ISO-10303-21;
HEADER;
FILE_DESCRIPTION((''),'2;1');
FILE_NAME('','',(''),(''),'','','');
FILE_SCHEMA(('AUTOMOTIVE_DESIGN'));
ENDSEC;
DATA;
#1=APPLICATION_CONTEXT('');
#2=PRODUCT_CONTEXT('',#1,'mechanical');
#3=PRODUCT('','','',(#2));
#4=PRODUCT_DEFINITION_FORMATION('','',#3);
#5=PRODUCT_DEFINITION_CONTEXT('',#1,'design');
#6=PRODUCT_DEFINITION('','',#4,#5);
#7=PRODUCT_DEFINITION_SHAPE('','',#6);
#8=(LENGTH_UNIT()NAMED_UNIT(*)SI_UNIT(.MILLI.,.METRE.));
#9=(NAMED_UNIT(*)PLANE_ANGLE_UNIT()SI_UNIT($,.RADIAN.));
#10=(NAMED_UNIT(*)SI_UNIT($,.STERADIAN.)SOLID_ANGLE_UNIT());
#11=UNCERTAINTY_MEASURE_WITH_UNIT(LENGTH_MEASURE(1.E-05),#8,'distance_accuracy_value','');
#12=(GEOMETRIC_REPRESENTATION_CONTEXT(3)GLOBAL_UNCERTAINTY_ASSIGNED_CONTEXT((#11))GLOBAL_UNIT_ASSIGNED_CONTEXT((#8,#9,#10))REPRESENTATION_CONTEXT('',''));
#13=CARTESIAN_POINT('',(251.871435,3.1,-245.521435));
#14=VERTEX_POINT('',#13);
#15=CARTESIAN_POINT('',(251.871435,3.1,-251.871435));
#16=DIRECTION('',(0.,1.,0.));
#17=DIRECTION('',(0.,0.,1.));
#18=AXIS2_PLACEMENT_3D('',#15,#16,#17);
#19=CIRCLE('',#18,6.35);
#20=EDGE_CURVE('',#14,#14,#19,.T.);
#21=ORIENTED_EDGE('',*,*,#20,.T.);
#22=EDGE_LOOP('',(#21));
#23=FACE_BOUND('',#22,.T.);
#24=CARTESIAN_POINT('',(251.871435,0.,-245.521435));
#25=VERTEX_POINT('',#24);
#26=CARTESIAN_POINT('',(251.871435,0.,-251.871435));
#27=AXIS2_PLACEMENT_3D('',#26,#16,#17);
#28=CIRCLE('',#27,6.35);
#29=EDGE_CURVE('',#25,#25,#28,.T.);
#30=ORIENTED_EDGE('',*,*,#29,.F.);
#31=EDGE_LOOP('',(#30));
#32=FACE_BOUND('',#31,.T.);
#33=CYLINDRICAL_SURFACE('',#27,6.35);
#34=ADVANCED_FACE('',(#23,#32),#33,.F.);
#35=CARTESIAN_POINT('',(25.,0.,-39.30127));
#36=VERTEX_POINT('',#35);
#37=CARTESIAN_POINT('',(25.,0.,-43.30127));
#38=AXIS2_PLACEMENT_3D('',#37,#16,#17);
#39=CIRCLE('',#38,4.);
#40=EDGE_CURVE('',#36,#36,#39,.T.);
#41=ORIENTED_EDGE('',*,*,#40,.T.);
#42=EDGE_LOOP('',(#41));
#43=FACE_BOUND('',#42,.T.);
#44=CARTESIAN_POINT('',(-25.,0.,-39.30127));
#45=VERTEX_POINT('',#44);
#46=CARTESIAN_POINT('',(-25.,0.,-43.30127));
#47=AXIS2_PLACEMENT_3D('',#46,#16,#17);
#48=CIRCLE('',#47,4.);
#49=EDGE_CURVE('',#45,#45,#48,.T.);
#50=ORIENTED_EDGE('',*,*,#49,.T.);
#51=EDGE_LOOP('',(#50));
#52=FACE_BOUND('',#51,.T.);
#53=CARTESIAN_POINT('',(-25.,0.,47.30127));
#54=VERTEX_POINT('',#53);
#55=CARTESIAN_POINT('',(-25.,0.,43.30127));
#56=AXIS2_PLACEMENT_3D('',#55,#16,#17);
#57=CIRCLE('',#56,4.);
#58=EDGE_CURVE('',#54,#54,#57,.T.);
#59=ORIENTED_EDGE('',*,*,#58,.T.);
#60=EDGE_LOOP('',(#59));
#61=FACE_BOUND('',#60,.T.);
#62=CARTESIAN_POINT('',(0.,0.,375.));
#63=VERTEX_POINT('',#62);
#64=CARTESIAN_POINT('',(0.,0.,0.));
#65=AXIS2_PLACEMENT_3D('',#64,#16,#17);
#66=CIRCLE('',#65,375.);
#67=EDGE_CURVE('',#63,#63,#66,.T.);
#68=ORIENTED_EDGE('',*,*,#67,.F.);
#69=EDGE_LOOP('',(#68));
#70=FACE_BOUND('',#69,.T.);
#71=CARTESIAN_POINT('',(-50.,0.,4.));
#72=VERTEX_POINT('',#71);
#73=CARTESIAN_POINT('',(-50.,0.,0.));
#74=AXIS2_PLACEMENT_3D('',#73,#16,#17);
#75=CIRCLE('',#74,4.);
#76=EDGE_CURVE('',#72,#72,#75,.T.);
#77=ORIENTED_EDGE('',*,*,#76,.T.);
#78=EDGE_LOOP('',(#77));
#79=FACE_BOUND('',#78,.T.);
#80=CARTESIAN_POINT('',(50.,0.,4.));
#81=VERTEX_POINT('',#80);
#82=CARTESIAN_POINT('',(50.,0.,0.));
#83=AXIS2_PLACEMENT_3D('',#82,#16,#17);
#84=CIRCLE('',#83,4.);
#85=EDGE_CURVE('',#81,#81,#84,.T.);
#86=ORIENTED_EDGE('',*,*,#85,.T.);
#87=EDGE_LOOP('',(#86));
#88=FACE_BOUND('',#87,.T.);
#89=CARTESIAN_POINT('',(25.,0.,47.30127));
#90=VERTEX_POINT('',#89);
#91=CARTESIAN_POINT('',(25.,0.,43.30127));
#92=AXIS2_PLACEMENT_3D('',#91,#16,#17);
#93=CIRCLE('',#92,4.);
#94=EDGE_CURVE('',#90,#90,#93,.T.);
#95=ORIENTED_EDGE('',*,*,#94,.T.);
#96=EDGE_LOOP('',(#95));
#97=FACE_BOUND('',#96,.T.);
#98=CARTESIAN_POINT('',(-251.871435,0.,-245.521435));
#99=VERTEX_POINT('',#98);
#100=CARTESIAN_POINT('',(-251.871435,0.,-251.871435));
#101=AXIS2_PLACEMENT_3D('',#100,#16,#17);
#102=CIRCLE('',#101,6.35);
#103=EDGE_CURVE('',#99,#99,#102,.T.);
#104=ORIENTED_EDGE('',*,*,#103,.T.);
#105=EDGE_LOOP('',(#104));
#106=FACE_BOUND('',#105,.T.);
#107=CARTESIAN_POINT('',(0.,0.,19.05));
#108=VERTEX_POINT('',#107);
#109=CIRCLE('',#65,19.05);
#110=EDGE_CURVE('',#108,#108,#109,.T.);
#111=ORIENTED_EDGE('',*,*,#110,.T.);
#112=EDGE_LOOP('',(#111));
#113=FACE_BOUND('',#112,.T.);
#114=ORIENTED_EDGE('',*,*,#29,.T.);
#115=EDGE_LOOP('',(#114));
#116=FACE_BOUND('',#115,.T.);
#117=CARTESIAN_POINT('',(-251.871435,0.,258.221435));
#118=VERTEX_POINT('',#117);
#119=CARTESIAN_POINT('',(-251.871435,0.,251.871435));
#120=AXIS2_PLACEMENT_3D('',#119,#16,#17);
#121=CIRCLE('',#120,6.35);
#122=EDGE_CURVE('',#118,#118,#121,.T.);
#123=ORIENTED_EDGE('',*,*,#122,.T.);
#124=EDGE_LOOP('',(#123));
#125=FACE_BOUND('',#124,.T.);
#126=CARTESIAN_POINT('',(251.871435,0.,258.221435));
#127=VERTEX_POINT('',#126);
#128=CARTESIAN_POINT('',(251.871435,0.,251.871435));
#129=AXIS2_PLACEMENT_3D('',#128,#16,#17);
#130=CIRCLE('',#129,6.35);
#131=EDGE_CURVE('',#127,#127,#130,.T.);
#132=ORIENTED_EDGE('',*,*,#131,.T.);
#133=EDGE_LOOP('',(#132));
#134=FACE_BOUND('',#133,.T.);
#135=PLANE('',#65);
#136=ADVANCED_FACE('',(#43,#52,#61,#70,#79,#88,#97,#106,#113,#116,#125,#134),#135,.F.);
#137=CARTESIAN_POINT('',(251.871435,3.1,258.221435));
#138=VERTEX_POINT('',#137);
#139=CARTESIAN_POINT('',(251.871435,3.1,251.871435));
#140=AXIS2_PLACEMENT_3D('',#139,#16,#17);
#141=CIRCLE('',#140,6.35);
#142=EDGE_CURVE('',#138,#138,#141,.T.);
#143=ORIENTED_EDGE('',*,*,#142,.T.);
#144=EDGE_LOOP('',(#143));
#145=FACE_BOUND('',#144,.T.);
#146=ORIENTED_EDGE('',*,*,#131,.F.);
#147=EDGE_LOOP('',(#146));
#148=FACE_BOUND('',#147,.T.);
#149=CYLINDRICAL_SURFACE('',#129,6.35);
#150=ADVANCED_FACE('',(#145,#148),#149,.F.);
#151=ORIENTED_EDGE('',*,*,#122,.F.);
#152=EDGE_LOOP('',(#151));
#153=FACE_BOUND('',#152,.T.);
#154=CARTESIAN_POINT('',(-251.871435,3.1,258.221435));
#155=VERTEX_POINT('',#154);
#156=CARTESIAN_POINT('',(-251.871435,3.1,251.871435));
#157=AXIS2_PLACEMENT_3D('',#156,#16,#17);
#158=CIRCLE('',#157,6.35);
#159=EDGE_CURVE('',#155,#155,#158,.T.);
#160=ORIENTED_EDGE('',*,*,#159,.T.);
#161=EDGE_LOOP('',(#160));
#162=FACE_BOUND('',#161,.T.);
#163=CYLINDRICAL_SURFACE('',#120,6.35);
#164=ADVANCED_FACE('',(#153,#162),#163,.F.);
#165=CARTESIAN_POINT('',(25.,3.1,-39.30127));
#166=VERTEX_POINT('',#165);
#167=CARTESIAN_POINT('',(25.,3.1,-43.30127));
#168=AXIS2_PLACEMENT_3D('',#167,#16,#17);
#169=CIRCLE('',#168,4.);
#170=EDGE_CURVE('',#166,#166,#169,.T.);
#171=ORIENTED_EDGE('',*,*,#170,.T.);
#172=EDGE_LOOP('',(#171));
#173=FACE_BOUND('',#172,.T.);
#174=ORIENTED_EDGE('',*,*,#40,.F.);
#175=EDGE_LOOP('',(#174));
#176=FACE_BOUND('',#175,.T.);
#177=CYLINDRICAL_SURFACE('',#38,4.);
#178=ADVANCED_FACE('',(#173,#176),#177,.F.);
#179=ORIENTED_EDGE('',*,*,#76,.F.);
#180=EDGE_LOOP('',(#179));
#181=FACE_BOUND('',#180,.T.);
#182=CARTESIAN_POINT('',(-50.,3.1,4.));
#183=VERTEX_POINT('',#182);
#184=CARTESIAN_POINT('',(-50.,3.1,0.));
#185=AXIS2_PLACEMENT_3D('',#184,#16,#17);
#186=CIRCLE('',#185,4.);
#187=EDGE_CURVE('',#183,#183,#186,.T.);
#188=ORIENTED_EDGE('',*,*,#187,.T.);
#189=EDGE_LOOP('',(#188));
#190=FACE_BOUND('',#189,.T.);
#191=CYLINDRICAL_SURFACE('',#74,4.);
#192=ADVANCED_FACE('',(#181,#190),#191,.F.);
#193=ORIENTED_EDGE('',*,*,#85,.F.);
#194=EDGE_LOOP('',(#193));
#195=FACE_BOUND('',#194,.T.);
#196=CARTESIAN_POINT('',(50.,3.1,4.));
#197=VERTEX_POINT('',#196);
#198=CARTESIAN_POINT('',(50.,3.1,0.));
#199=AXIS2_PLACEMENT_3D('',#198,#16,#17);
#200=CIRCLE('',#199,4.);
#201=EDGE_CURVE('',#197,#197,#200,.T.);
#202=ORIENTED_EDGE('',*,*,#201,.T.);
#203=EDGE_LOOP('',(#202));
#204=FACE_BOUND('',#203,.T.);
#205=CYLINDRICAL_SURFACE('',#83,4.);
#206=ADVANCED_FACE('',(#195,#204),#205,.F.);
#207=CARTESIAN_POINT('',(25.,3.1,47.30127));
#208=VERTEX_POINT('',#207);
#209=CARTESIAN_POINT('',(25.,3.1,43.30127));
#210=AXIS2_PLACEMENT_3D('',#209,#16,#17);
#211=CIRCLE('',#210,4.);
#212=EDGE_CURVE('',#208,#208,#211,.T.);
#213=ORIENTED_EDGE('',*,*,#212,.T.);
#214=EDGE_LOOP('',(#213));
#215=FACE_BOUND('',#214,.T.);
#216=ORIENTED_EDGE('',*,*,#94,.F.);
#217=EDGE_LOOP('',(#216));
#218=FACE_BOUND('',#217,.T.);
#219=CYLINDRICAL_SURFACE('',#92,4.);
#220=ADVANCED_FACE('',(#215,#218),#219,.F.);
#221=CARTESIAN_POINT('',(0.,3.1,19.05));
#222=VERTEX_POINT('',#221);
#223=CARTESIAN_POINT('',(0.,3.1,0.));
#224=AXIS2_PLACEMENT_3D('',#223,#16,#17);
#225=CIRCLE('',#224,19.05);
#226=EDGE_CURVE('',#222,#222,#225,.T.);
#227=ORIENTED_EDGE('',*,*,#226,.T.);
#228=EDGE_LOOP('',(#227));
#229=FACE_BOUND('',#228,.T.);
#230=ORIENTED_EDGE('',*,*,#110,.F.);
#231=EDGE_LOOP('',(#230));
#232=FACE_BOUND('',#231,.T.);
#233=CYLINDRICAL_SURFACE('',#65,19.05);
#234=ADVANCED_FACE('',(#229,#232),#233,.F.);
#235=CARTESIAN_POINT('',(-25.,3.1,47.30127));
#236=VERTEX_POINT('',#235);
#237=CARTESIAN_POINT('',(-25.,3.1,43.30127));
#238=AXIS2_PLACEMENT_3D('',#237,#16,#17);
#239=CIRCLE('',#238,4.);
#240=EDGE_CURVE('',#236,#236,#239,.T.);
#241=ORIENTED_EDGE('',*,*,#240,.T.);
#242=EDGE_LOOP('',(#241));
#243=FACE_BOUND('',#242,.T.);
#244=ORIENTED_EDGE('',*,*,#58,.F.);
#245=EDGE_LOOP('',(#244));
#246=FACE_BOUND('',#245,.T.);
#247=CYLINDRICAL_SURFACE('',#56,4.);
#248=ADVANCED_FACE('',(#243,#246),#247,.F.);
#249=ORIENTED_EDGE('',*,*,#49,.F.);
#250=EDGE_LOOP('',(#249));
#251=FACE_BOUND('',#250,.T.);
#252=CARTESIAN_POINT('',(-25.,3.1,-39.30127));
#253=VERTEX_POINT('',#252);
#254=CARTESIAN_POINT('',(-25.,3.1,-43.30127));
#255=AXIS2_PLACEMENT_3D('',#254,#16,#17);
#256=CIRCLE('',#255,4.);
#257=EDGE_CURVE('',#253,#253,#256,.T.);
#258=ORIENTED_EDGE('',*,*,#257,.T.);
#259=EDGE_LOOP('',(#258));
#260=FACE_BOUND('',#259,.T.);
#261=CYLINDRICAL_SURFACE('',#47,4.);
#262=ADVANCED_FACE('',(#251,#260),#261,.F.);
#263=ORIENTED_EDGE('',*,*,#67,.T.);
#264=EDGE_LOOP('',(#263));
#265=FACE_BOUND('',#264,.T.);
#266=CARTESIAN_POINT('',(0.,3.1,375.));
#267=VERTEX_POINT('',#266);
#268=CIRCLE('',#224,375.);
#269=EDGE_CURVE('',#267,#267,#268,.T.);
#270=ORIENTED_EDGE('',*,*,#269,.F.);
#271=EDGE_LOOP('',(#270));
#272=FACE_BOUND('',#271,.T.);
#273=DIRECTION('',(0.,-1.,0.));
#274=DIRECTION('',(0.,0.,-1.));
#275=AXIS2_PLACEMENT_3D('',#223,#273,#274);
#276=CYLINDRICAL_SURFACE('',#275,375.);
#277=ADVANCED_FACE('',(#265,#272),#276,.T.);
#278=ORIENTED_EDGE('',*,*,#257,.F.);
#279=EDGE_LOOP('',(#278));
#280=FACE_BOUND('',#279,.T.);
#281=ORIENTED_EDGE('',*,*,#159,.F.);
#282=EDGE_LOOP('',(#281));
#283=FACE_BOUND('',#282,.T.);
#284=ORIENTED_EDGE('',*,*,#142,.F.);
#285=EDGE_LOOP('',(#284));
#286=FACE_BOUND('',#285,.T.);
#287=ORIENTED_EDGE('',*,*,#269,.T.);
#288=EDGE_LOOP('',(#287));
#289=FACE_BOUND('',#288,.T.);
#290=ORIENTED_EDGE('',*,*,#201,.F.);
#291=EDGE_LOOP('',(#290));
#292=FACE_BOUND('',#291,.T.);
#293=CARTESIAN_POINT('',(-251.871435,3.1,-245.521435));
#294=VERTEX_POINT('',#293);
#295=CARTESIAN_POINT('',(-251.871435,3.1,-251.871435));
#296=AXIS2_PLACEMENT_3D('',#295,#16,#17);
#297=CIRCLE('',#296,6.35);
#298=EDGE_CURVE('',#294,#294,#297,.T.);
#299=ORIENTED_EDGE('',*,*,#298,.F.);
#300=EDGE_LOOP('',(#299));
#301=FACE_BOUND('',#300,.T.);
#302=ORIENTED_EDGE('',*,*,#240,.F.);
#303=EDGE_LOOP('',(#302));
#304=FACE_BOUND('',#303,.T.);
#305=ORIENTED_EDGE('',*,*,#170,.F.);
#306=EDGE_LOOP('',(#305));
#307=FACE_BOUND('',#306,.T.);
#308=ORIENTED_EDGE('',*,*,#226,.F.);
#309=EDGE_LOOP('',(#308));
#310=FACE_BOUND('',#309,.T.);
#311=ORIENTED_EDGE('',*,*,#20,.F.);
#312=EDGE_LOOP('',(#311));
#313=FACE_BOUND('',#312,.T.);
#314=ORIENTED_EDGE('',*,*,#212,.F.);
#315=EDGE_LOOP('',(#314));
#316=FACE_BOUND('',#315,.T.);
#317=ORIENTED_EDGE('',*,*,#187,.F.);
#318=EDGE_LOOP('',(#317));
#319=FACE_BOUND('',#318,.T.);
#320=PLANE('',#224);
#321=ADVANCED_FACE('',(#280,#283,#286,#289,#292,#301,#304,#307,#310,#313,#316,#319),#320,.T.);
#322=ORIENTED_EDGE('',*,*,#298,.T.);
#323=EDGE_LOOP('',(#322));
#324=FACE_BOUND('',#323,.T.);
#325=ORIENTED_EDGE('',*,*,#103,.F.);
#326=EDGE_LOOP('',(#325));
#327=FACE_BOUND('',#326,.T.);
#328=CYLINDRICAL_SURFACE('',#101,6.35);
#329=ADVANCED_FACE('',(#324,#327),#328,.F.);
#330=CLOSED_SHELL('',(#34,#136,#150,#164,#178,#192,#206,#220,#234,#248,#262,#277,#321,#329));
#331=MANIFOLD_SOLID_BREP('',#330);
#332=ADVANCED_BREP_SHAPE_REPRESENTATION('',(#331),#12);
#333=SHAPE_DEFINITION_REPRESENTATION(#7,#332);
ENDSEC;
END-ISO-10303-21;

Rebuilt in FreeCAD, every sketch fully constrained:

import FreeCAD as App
import Part
import Sketcher
from FreeCAD import Vector
Q = App.Units.Quantity

doc = App.newDocument("Part")
body = doc.addObject("PartDesign::Body", "Body")

# Sketch on XZ plane
sketch1 = doc.addObject("Sketcher::SketchObject", "Sketch")
body.addObject(sketch1)
sketch1.AttachmentSupport = (doc.XZ_Plane, [""])
sketch1.MapMode = "FlatFace"
sketch1.addGeometry(Part.Circle(Vector(0, 0, 0), Vector(0, 0, 1), 375), False)
sketch1.addConstraint([
    Sketcher.Constraint("Coincident", 0, 3, -1, 1),
    Sketcher.Constraint("Diameter", 0, Q("750 mm")),
])
pad1 = doc.addObject("PartDesign::Pad", "Pad")
body.addObject(pad1)
pad1.Profile = sketch1
pad1.Length = 3.1
pad1.Reversed = True

# Sketch on XZ plane
sketch2 = doc.addObject("Sketcher::SketchObject", "Sketch001")
body.addObject(sketch2)
sketch2.AttachmentSupport = (doc.XZ_Plane, [""])
sketch2.MapMode = "FlatFace"
sketch2.AttachmentOffset = App.Placement(Vector(0, 0, -3.1), App.Rotation())
sketch2.addGeometry([
    Part.Circle(Vector(-252, 252, 0), Vector(0, 0, 1), 6),  # 0
    Part.Circle(Vector(-252, -252, 0), Vector(0, 0, 1), 6),  # 1
    Part.Circle(Vector(252, -252, 0), Vector(0, 0, 1), 6),  # 2
    Part.Circle(Vector(252, 252, 0), Vector(0, 0, 1), 6),  # 3
    Part.Circle(Vector(0, 0, 0), Vector(0, 0, 1), 19),  # 4
], False)
sketch2.addConstraint([
    Sketcher.Constraint("Coincident", 4, 3, -1, 1),
    Sketcher.Constraint("Equal", 0, 1),
    Sketcher.Constraint("Equal", 1, 2),
    Sketcher.Constraint("Equal", 2, 3),
    Sketcher.Constraint("Symmetric", 0, 3, 2, 3, -1, 1),
    Sketcher.Constraint("Symmetric", 1, 3, 3, 3, -1, 1),
    Sketcher.Constraint("Symmetric", 1, 3, 2, 3, -2),
    Sketcher.Constraint("Diameter", 0, Q("12.7 mm")),
    Sketcher.Constraint("Diameter", 4, Q("38.1 mm")),
    Sketcher.Constraint("DistanceY", 1, 3, 0, 3, Q("503.742871 mm")),
    Sketcher.Constraint("DistanceX", 1, 3, 2, 3, Q("503.742871 mm")),
])
pocket1 = doc.addObject("PartDesign::Pocket", "Pocket")
body.addObject(pocket1)
pocket1.Profile = sketch2
pocket1.Type = "ThroughAll"
pocket1.Reversed = True

# Sketch on XZ plane
sketch3 = doc.addObject("Sketcher::SketchObject", "Sketch002")
body.addObject(sketch3)
sketch3.AttachmentSupport = (doc.XZ_Plane, [""])
sketch3.MapMode = "FlatFace"
sketch3.AttachmentOffset = App.Placement(Vector(0, 0, -3.1), App.Rotation())
sketch3.addGeometry([
    Part.Circle(Vector(50, 0, 0), Vector(0, 0, 1), 4),  # 0
    Part.Circle(Vector(25, 43.3, 0), Vector(0, 0, 1), 4),  # 1
    Part.Circle(Vector(-25, 43.3, 0), Vector(0, 0, 1), 4),  # 2
    Part.Circle(Vector(-50, 0, 0), Vector(0, 0, 1), 4),  # 3
    Part.Circle(Vector(-25, -43.3, 0), Vector(0, 0, 1), 4),  # 4
    Part.Circle(Vector(25, -43.3, 0), Vector(0, 0, 1), 4),  # 5
], False)
sketch3.addConstraint([
    Sketcher.Constraint("Equal", 0, 1),
    Sketcher.Constraint("Equal", 1, 2),
    Sketcher.Constraint("Equal", 2, 3),
    Sketcher.Constraint("Equal", 3, 4),
    Sketcher.Constraint("Equal", 4, 5),
    Sketcher.Constraint("Symmetric", 0, 3, 3, 3, -1, 1),
    Sketcher.Constraint("Symmetric", 1, 3, 4, 3, -1, 1),
    Sketcher.Constraint("Symmetric", 2, 3, 5, 3, -1, 1),
    Sketcher.Constraint("Symmetric", 1, 3, 2, 3, -2),
    Sketcher.Constraint("PointOnObject", 0, 3, -1),
    Sketcher.Constraint("Diameter", 0, Q("8 mm")),
    Sketcher.Constraint("DistanceX", -1, 1, 0, 3, Q("50 mm")),
    Sketcher.Constraint("DistanceX", -1, 1, 1, 3, Q("25 mm")),
    Sketcher.Constraint("DistanceY", -1, 1, 1, 3, Q("43.30127 mm")),
])
pocket2 = doc.addObject("PartDesign::Pocket", "Pocket001")
body.addObject(pocket2)
pocket2.Profile = sketch3
pocket2.Type = "ThroughAll"
pocket2.Reversed = True

doc.recompute()
